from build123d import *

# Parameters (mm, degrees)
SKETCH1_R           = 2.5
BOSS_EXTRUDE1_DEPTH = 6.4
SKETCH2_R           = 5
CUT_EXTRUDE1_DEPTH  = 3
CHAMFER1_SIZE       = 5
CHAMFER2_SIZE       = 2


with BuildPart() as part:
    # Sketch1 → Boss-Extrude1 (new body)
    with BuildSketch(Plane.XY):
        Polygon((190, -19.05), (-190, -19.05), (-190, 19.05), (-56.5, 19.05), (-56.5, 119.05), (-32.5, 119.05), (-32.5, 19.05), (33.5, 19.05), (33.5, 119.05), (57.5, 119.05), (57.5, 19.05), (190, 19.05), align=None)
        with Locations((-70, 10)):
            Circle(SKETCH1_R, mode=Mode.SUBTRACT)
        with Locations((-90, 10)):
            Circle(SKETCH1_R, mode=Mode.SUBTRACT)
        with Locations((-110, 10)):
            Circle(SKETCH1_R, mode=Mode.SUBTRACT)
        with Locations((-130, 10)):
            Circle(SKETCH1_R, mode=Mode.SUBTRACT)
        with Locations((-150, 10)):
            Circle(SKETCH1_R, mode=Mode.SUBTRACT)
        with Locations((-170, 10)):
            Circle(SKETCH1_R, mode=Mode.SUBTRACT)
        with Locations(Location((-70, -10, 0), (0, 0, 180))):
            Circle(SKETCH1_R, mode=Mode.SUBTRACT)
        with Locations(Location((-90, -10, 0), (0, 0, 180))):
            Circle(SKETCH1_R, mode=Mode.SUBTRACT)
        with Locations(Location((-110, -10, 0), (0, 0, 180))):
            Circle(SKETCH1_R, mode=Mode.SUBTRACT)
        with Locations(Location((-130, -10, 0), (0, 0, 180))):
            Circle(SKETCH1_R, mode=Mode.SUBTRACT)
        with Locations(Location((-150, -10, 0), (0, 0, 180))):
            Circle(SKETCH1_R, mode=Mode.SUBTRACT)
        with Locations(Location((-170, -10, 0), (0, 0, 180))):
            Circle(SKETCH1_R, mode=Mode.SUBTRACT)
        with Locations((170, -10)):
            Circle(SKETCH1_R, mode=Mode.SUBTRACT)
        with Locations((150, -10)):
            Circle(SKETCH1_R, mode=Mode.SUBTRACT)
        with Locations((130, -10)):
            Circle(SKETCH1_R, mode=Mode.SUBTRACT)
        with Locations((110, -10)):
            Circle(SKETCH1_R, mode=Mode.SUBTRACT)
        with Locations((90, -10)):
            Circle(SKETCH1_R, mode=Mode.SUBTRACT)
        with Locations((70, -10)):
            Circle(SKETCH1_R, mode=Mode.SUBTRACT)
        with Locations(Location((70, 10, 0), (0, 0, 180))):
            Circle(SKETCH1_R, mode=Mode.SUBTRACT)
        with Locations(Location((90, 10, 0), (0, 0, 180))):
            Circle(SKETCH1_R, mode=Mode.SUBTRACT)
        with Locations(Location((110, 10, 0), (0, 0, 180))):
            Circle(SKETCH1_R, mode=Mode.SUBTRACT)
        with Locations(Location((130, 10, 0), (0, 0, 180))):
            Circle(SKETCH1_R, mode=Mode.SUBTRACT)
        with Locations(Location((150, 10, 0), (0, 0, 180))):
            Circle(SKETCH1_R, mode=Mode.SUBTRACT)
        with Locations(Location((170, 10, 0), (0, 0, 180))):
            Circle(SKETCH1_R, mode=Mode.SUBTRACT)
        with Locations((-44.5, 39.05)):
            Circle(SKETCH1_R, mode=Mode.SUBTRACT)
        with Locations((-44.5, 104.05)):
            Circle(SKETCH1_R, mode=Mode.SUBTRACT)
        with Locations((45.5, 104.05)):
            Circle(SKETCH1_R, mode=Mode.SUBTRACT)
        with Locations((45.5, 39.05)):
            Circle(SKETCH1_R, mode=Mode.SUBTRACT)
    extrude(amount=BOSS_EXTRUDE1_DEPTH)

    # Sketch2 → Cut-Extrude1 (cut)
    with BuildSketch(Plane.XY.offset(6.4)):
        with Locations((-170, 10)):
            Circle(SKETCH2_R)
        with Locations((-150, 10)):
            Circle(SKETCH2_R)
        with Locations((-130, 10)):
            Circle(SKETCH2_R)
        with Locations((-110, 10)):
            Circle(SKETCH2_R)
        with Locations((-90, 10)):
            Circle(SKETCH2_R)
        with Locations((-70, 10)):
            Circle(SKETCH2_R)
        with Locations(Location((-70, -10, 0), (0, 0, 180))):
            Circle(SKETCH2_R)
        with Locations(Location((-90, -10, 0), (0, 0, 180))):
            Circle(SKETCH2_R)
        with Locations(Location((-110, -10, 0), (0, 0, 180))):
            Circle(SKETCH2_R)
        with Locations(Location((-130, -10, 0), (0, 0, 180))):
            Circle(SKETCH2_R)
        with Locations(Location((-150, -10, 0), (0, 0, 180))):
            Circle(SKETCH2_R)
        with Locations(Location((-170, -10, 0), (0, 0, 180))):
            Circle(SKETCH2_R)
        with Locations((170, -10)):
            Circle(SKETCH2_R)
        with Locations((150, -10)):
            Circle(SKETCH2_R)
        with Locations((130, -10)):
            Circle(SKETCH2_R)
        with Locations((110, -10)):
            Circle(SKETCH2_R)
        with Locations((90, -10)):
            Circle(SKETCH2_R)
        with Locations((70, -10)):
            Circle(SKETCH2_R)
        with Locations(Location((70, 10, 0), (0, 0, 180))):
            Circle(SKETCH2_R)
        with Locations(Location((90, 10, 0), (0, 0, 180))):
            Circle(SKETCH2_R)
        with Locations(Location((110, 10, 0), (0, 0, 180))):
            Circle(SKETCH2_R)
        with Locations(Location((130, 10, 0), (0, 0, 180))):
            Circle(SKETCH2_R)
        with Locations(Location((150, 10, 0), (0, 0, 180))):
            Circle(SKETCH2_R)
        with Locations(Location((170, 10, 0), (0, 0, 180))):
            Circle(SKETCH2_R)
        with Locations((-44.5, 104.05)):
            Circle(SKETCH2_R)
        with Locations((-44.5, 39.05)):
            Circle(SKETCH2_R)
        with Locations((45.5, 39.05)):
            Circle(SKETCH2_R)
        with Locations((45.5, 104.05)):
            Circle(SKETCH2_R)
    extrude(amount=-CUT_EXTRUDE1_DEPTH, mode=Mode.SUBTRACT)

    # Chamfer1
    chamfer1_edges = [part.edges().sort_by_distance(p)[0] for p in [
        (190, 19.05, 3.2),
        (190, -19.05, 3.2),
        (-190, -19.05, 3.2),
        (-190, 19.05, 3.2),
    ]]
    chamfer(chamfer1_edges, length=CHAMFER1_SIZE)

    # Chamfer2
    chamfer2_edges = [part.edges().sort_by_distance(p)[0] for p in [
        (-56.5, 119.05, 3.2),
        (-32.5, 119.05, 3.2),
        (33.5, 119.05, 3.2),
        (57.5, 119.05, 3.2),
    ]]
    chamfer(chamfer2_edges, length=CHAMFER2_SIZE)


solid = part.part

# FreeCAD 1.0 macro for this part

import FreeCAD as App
import Part
import Sketcher
from FreeCAD import Vector
Q = App.Units.Quantity


def edges_at(feature, points):
    """Names of the edges that pass closest to the given points."""
    edges = feature.Shape.Edges
    near = lambda p: min(range(len(edges)), key=lambda i: edges[i].distToShape(Part.Vertex(*p))[0])
    return sorted({f"Edge{near(p) + 1}" for p in points})


def add_polygon(sketch, points):
    """Adds a closed chain of lines whose ends are joined by coincident constraints."""
    first, n = sketch.GeometryCount, len(points)
    for a, b in zip(points, points[1:] + points[:1]):
        sketch.addGeometry(Part.LineSegment(App.Vector(*a, 0), App.Vector(*b, 0)), False)
    for i in range(n):
        sketch.addConstraint(Sketcher.Constraint("Coincident", first + i, 2, first + (i + 1) % n, 1))

doc = App.newDocument("Part")
body = doc.addObject("PartDesign::Body", "Body")

# Sketch on XY plane
sketch1 = body.newObject("Sketcher::SketchObject", "Sketch")
sketch1.AttachmentSupport = (doc.getObject("XY_Plane"), [""])
sketch1.MapMode = "FlatFace"
add_polygon(sketch1, [(-190, -19.1), (190, -19.1), (190, 19.1), (57.5, 19.1), (57.5, 119), (33.5, 119), (33.5, 19.1), (-32.5, 19.1), (-32.5, 119), (-56.5, 119), (-56.5, 19.1), (-190, 19.1)])  # lines 0-11
sketch1.addGeometry(Part.Circle(Vector(170, -10, 0), Vector(0, 0, 1), 2.5), False)  # 12
sketch1.addGeometry(Part.Circle(Vector(150, -10, 0), Vector(0, 0, 1), 2.5), False)  # 13
sketch1.addGeometry(Part.Circle(Vector(130, -10, 0), Vector(0, 0, 1), 2.5), False)  # 14
sketch1.addGeometry(Part.Circle(Vector(110, -10, 0), Vector(0, 0, 1), 2.5), False)  # 15
sketch1.addGeometry(Part.Circle(Vector(90, -10, 0), Vector(0, 0, 1), 2.5), False)  # 16
sketch1.addGeometry(Part.Circle(Vector(170, 10, 0), Vector(0, 0, 1), 2.5), False)  # 17
sketch1.addGeometry(Part.Circle(Vector(150, 10, 0), Vector(0, 0, 1), 2.5), False)  # 18
sketch1.addGeometry(Part.Circle(Vector(130, 10, 0), Vector(0, 0, 1), 2.5), False)  # 19
sketch1.addGeometry(Part.Circle(Vector(110, 10, 0), Vector(0, 0, 1), 2.5), False)  # 20
sketch1.addGeometry(Part.Circle(Vector(90, 10, 0), Vector(0, 0, 1), 2.5), False)  # 21
sketch1.addGeometry(Part.Circle(Vector(70, -10, 0), Vector(0, 0, 1), 2.5), False)  # 22
sketch1.addGeometry(Part.Circle(Vector(70, 10, 0), Vector(0, 0, 1), 2.5), False)  # 23
sketch1.addGeometry(Part.Circle(Vector(45.5, 39, 0), Vector(0, 0, 1), 2.5), False)  # 24
sketch1.addGeometry(Part.Circle(Vector(-70, -10, 0), Vector(0, 0, 1), 2.5), False)  # 25
sketch1.addGeometry(Part.Circle(Vector(-70, 10, 0), Vector(0, 0, 1), 2.5), False)  # 26
sketch1.addGeometry(Part.Circle(Vector(-90, -10, 0), Vector(0, 0, 1), 2.5), False)  # 27
sketch1.addGeometry(Part.Circle(Vector(-110, -10, 0), Vector(0, 0, 1), 2.5), False)  # 28
sketch1.addGeometry(Part.Circle(Vector(-130, -10, 0), Vector(0, 0, 1), 2.5), False)  # 29
sketch1.addGeometry(Part.Circle(Vector(-150, -10, 0), Vector(0, 0, 1), 2.5), False)  # 30
sketch1.addGeometry(Part.Circle(Vector(-170, -10, 0), Vector(0, 0, 1), 2.5), False)  # 31
sketch1.addGeometry(Part.Circle(Vector(-90, 10, 0), Vector(0, 0, 1), 2.5), False)  # 32
sketch1.addGeometry(Part.Circle(Vector(-110, 10, 0), Vector(0, 0, 1), 2.5), False)  # 33
sketch1.addGeometry(Part.Circle(Vector(-130, 10, 0), Vector(0, 0, 1), 2.5), False)  # 34
sketch1.addGeometry(Part.Circle(Vector(-150, 10, 0), Vector(0, 0, 1), 2.5), False)  # 35
sketch1.addGeometry(Part.Circle(Vector(-170, 10, 0), Vector(0, 0, 1), 2.5), False)  # 36
sketch1.addGeometry(Part.Circle(Vector(-44.5, 39, 0), Vector(0, 0, 1), 2.5), False)  # 37
sketch1.addGeometry(Part.Circle(Vector(45.5, 104, 0), Vector(0, 0, 1), 2.5), False)  # 38
sketch1.addGeometry(Part.Circle(Vector(-44.5, 104, 0), Vector(0, 0, 1), 2.5), False)  # 39
sketch1.addConstraint([
    Sketcher.Constraint("Horizontal", 0),
    Sketcher.Constraint("Vertical", 1),
    Sketcher.Constraint("Horizontal", 2),
    Sketcher.Constraint("Vertical", 3),
    Sketcher.Constraint("Horizontal", 4),
    Sketcher.Constraint("Vertical", 5),
    Sketcher.Constraint("Horizontal", 6),
    Sketcher.Constraint("Vertical", 7),
    Sketcher.Constraint("Horizontal", 8),
    Sketcher.Constraint("Vertical", 9),
    Sketcher.Constraint("Horizontal", 10),
    Sketcher.Constraint("Vertical", 11),
    Sketcher.Constraint("Equal", 12, 13),
    Sketcher.Constraint("Equal", 13, 14),
    Sketcher.Constraint("Equal", 14, 15),
    Sketcher.Constraint("Equal", 15, 16),
    Sketcher.Constraint("Equal", 16, 17),
    Sketcher.Constraint("Equal", 17, 18),
    Sketcher.Constraint("Equal", 18, 19),
    Sketcher.Constraint("Equal", 19, 20),
    Sketcher.Constraint("Equal", 20, 21),
    Sketcher.Constraint("Equal", 21, 22),
    Sketcher.Constraint("Equal", 22, 23),
    Sketcher.Constraint("Equal", 23, 24),
    Sketcher.Constraint("Equal", 24, 25),
    Sketcher.Constraint("Equal", 25, 26),
    Sketcher.Constraint("Equal", 26, 27),
    Sketcher.Constraint("Equal", 27, 28),
    Sketcher.Constraint("Equal", 28, 29),
    Sketcher.Constraint("Equal", 29, 30),
    Sketcher.Constraint("Equal", 30, 31),
    Sketcher.Constraint("Equal", 31, 32),
    Sketcher.Constraint("Equal", 32, 33),
    Sketcher.Constraint("Equal", 33, 34),
    Sketcher.Constraint("Equal", 34, 35),
    Sketcher.Constraint("Equal", 35, 36),
    Sketcher.Constraint("Equal", 36, 37),
    Sketcher.Constraint("Equal", 37, 38),
    Sketcher.Constraint("Equal", 38, 39),
    Sketcher.Constraint("Symmetric", 23, 3, 25, 3, -1, 1),
    Sketcher.Constraint("Symmetric", 22, 3, 26, 3, -1, 1),
    Sketcher.Constraint("Symmetric", 21, 3, 27, 3, -1, 1),
    Sketcher.Constraint("Symmetric", 20, 3, 28, 3, -1, 1),
    Sketcher.Constraint("Symmetric", 19, 3, 29, 3, -1, 1),
    Sketcher.Constraint("Symmetric", 18, 3, 30, 3, -1, 1),
    Sketcher.Constraint("Symmetric", 17, 3, 31, 3, -1, 1),
    Sketcher.Constraint("Symmetric", 16, 3, 32, 3, -1, 1),
    Sketcher.Constraint("Symmetric", 15, 3, 33, 3, -1, 1),
    Sketcher.Constraint("Symmetric", 14, 3, 34, 3, -1, 1),
    Sketcher.Constraint("Symmetric", 13, 3, 35, 3, -1, 1),
    Sketcher.Constraint("Symmetric", 12, 3, 36, 3, -1, 1),
    Sketcher.Constraint("Symmetric", 0, 2, 10, 2, -1, 1),
    Sketcher.Constraint("Symmetric", 22, 3, 25, 3, -2),
    Sketcher.Constraint("Symmetric", 16, 3, 27, 3, -2),
    Sketcher.Constraint("Symmetric", 15, 3, 28, 3, -2),
    Sketcher.Constraint("Symmetric", 14, 3, 29, 3, -2),
    Sketcher.Constraint("Symmetric", 13, 3, 30, 3, -2),
    Sketcher.Constraint("Symmetric", 12, 3, 31, 3, -2),
    Sketcher.Constraint("Horizontal", 12, 3, 13, 3),
    Sketcher.Constraint("Horizontal", 13, 3, 14, 3),
    Sketcher.Constraint("Horizontal", 14, 3, 15, 3),
    Sketcher.Constraint("Horizontal", 15, 3, 16, 3),
    Sketcher.Constraint("Horizontal", 16, 3, 22, 3),
    Sketcher.Constraint("Horizontal", 24, 3, 37, 3),
    Sketcher.Constraint("Horizontal", 38, 3, 39, 3),
    Sketcher.Constraint("Horizontal", 2, 2, 5, 2),
    Sketcher.Constraint("Horizontal", 4, 2, 7, 2),
    Sketcher.Constraint("Horizontal", 6, 2, 9, 2),
    Sketcher.Constraint("Vertical", 24, 3, 38, 3),
    Sketcher.Constraint("Vertical", 37, 3, 39, 3),
    Sketcher.Constraint("Equal", 4, 8),
    Sketcher.Constraint("Diameter", 12, Q("5 mm")),
    Sketcher.Constraint("DistanceX", 0, 1, 0, 2, Q("380 mm")),
    Sketcher.Constraint("DistanceX", 4, 2, 4, 1, Q("24 mm")),
    Sketcher.Constraint("DistanceX", 6, 2, 6, 1, Q("66 mm")),
    Sketcher.Constraint("DistanceY", 3, 1, 3, 2, Q("100 mm")),
    Sketcher.Constraint("DistanceX", 2, 2, 2, 1, Q("132.5 mm")),
    Sketcher.Constraint("DistanceY", 1, 1, 1, 2, Q("38.1 mm")),
    Sketcher.Constraint("DistanceX", -1, 1, 12, 3, Q("170 mm")),
    Sketcher.Constraint("DistanceY", 12, 3, -1, 1, Q("10 mm")),
    Sketcher.Constraint("DistanceX", -1, 1, 13, 3, Q("150 mm")),
    Sketcher.Constraint("DistanceX", -1, 1, 14, 3, Q("130 mm")),
    Sketcher.Constraint("DistanceX", -1, 1, 15, 3, Q("110 mm")),
    Sketcher.Constraint("DistanceX", -1, 1, 16, 3, Q("90 mm")),
    Sketcher.Constraint("DistanceX", -1, 1, 22, 3, Q("70 mm")),
    Sketcher.Constraint("DistanceY", 24, 3, 38, 3, Q("65 mm")),
    Sketcher.Constraint("DistanceX", 37, 3, 38, 3, Q("90 mm")),
    Sketcher.Constraint("DistanceX", 24, 3, 2, 2, Q("12 mm")),
    Sketcher.Constraint("DistanceY", 2, 2, 24, 3, Q("20 mm")),
])
pad1 = body.newObject("PartDesign::Pad", "Pad")
pad1.Profile = sketch1
pad1.Length = 6.4

# Sketch on XY plane
sketch2 = body.newObject("Sketcher::SketchObject", "Sketch001")
sketch2.AttachmentSupport = (doc.getObject("XY_Plane"), [""])
sketch2.MapMode = "FlatFace"
sketch2.AttachmentOffset = App.Placement(Vector(0, 0, 6.4), App.Rotation())
sketch2.addGeometry([
    Part.Circle(Vector(-170, 10, 0), Vector(0, 0, 1), 5),  # 0
    Part.Circle(Vector(-150, 10, 0), Vector(0, 0, 1), 5),  # 1
    Part.Circle(Vector(-130, 10, 0), Vector(0, 0, 1), 5),  # 2
    Part.Circle(Vector(-110, 10, 0), Vector(0, 0, 1), 5),  # 3
    Part.Circle(Vector(-90, 10, 0), Vector(0, 0, 1), 5),  # 4
    Part.Circle(Vector(-70, 10, 0), Vector(0, 0, 1), 5),  # 5
    Part.Circle(Vector(-70, -10, 0), Vector(0, 0, 1), 5),  # 6
    Part.Circle(Vector(-90, -10, 0), Vector(0, 0, 1), 5),  # 7
    Part.Circle(Vector(-110, -10, 0), Vector(0, 0, 1), 5),  # 8
    Part.Circle(Vector(-130, -10, 0), Vector(0, 0, 1), 5),  # 9
    Part.Circle(Vector(-150, -10, 0), Vector(0, 0, 1), 5),  # 10
    Part.Circle(Vector(-170, -10, 0), Vector(0, 0, 1), 5),  # 11
    Part.Circle(Vector(170, -10, 0), Vector(0, 0, 1), 5),  # 12
    Part.Circle(Vector(150, -10, 0), Vector(0, 0, 1), 5),  # 13
    Part.Circle(Vector(130, -10, 0), Vector(0, 0, 1), 5),  # 14
    Part.Circle(Vector(110, -10, 0), Vector(0, 0, 1), 5),  # 15
    Part.Circle(Vector(90, -10, 0), Vector(0, 0, 1), 5),  # 16
    Part.Circle(Vector(70, -10, 0), Vector(0, 0, 1), 5),  # 17
    Part.Circle(Vector(70, 10, 0), Vector(0, 0, 1), 5),  # 18
    Part.Circle(Vector(90, 10, 0), Vector(0, 0, 1), 5),  # 19
    Part.Circle(Vector(110, 10, 0), Vector(0, 0, 1), 5),  # 20
    Part.Circle(Vector(130, 10, 0), Vector(0, 0, 1), 5),  # 21
    Part.Circle(Vector(150, 10, 0), Vector(0, 0, 1), 5),  # 22
    Part.Circle(Vector(170, 10, 0), Vector(0, 0, 1), 5),  # 23
    Part.Circle(Vector(-44, 104, 0), Vector(0, 0, 1), 5),  # 24
    Part.Circle(Vector(-44, 39, 0), Vector(0, 0, 1), 5),  # 25
    Part.Circle(Vector(46, 39, 0), Vector(0, 0, 1), 5),  # 26
    Part.Circle(Vector(46, 104, 0), Vector(0, 0, 1), 5),  # 27
], False)
sketch2.addConstraint([
    Sketcher.Constraint("Equal", 0, 1),
    Sketcher.Constraint("Equal", 1, 2),
    Sketcher.Constraint("Equal", 2, 3),
    Sketcher.Constraint("Equal", 3, 4),
    Sketcher.Constraint("Equal", 4, 5),
    Sketcher.Constraint("Equal", 5, 6),
    Sketcher.Constraint("Equal", 6, 7),
    Sketcher.Constraint("Equal", 7, 8),
    Sketcher.Constraint("Equal", 8, 9),
    Sketcher.Constraint("Equal", 9, 10),
    Sketcher.Constraint("Equal", 10, 11),
    Sketcher.Constraint("Equal", 11, 12),
    Sketcher.Constraint("Equal", 12, 13),
    Sketcher.Constraint("Equal", 13, 14),
    Sketcher.Constraint("Equal", 14, 15),
    Sketcher.Constraint("Equal", 15, 16),
    Sketcher.Constraint("Equal", 16, 17),
    Sketcher.Constraint("Equal", 17, 18),
    Sketcher.Constraint("Equal", 18, 19),
    Sketcher.Constraint("Equal", 19, 20),
    Sketcher.Constraint("Equal", 20, 21),
    Sketcher.Constraint("Equal", 21, 22),
    Sketcher.Constraint("Equal", 22, 23),
    Sketcher.Constraint("Equal", 23, 24),
    Sketcher.Constraint("Equal", 24, 25),
    Sketcher.Constraint("Equal", 25, 26),
    Sketcher.Constraint("Equal", 26, 27),
    Sketcher.Constraint("Symmetric", 0, 3, 12, 3, -1, 1),
    Sketcher.Constraint("Symmetric", 1, 3, 13, 3, -1, 1),
    Sketcher.Constraint("Symmetric", 2, 3, 14, 3, -1, 1),
    Sketcher.Constraint("Symmetric", 3, 3, 15, 3, -1, 1),
    Sketcher.Constraint("Symmetric", 4, 3, 16, 3, -1, 1),
    Sketcher.Constraint("Symmetric", 5, 3, 17, 3, -1, 1),
    Sketcher.Constraint("Symmetric", 6, 3, 18, 3, -1, 1),
    Sketcher.Constraint("Symmetric", 7, 3, 19, 3, -1, 1),
    Sketcher.Constraint("Symmetric", 8, 3, 20, 3, -1, 1),
    Sketcher.Constraint("Symmetric", 9, 3, 21, 3, -1, 1),
    Sketcher.Constraint("Symmetric", 10, 3, 22, 3, -1, 1),
    Sketcher.Constraint("Symmetric", 11, 3, 23, 3, -1, 1),
    Sketcher.Constraint("Symmetric", 11, 3, 12, 3, -2),
    Sketcher.Constraint("Symmetric", 10, 3, 13, 3, -2),
    Sketcher.Constraint("Symmetric", 9, 3, 14, 3, -2),
    Sketcher.Constraint("Symmetric", 8, 3, 15, 3, -2),
    Sketcher.Constraint("Symmetric", 7, 3, 16, 3, -2),
    Sketcher.Constraint("Symmetric", 6, 3, 17, 3, -2),
    Sketcher.Constraint("Horizontal", 0, 3, 1, 3),
    Sketcher.Constraint("Horizontal", 1, 3, 2, 3),
    Sketcher.Constraint("Horizontal", 2, 3, 3, 3),
    Sketcher.Constraint("Horizontal", 3, 3, 4, 3),
    Sketcher.Constraint("Horizontal", 4, 3, 5, 3),
    Sketcher.Constraint("Horizontal", 25, 3, 26, 3),
    Sketcher.Constraint("Horizontal", 24, 3, 27, 3),
    Sketcher.Constraint("Vertical", 24, 3, 25, 3),
    Sketcher.Constraint("Vertical", 26, 3, 27, 3),
    Sketcher.Constraint("Diameter", 0, Q("10 mm")),
    Sketcher.Constraint("DistanceX", 0, 3, -1, 1, Q("170 mm")),
    Sketcher.Constraint("DistanceY", -1, 1, 0, 3, Q("10 mm")),
    Sketcher.Constraint("DistanceX", 1, 3, -1, 1, Q("150 mm")),
    Sketcher.Constraint("DistanceX", 2, 3, -1, 1, Q("130 mm")),
    Sketcher.Constraint("DistanceX", 3, 3, -1, 1, Q("110 mm")),
    Sketcher.Constraint("DistanceX", 4, 3, -1, 1, Q("90 mm")),
    Sketcher.Constraint("DistanceX", 5, 3, -1, 1, Q("70 mm")),
    Sketcher.Constraint("DistanceY", 25, 3, 24, 3, Q("65 mm")),
    Sketcher.Constraint("DistanceX", 24, 3, 27, 3, Q("90 mm")),
    Sketcher.Constraint("DistanceX", 24, 3, -1, 1, Q("44.5 mm")),
    Sketcher.Constraint("DistanceY", -1, 1, 24, 3, Q("104.05 mm")),
])
pocket1 = body.newObject("PartDesign::Pocket", "Pocket")
pocket1.Profile = sketch2
pocket1.Length = 3
doc.recompute()

chamfer = body.newObject("PartDesign::Chamfer", "Chamfer")
chamfer.Base = (pocket1, edges_at(pocket1, [
    (190, 19.05, 3.2),
    (190, -19.05, 3.2),
    (-190, -19.05, 3.2),
    (-190, 19.05, 3.2),
]))
chamfer.Size = 5
doc.recompute()

chamfer2 = body.newObject("PartDesign::Chamfer", "Chamfer001")
chamfer2.Base = (chamfer, edges_at(chamfer, [
    (-56.5, 119.05, 3.2),
    (-32.5, 119.05, 3.2),
    (33.5, 119.05, 3.2),
    (57.5, 119.05, 3.2),
]))
chamfer2.Size = 2

doc.recompute()
